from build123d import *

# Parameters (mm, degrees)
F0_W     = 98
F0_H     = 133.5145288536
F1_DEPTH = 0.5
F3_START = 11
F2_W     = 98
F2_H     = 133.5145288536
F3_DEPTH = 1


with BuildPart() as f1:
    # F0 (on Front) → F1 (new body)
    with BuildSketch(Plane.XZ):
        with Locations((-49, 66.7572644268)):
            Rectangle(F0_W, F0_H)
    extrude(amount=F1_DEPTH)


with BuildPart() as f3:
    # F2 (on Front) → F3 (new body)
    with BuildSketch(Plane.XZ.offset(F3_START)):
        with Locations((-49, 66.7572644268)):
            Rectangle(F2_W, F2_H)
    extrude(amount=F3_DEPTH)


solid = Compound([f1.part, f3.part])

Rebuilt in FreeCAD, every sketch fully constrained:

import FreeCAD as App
import Part
import Sketcher


def add_polygon(sketch, points):
    """Adds a closed chain of lines whose ends are joined by coincident constraints."""
    first, n = sketch.GeometryCount, len(points)
    for a, b in zip(points, points[1:] + points[:1]):
        sketch.addGeometry(Part.LineSegment(App.Vector(*a, 0), App.Vector(*b, 0)), False)
    for i in range(n):
        sketch.addConstraint(Sketcher.Constraint("Coincident", first + i, 2, first + (i + 1) % n, 1))

doc = App.newDocument("Part")
body = doc.addObject("PartDesign::Body", "Body")

# Sketch on XZ plane
sketch1 = body.newObject("Sketcher::SketchObject", "Sketch")
sketch1.AttachmentSupport = (doc.getObject("XZ_Plane"), [""])
sketch1.MapMode = "FlatFace"
add_polygon(sketch1, [(-98, 134), (-98, 0), (0, 0), (0, 134)])  # lines 0-3
sketch1.addConstraint(Sketcher.Constraint("Vertical", 0))
sketch1.addConstraint(Sketcher.Constraint("Horizontal", 1))
sketch1.addConstraint(Sketcher.Constraint("Vertical", 2))
sketch1.addConstraint(Sketcher.Constraint("Horizontal", 3))
sketch1.addConstraint(Sketcher.Constraint("Coincident", 1, 2, -1, 1))
sketch1.addConstraint(Sketcher.Constraint("DistanceX", 1, 1, 1, 2, 98.0))
sketch1.addConstraint(Sketcher.Constraint("DistanceY", 0, 2, 0, 1, 133.514529))
pad1 = body.newObject("PartDesign::Pad", "Pad")
pad1.Profile = sketch1
pad1.Length = 0.5
body2 = doc.addObject("PartDesign::Body", "Body001")

# Sketch on XZ plane
sketch2 = body2.newObject("Sketcher::SketchObject", "Sketch001")
sketch2.AttachmentSupport = (doc.getObject("XZ_Plane001"), [""])
sketch2.MapMode = "FlatFace"
sketch2.AttachmentOffset = App.Placement(App.Vector(0, 0, 11), App.Rotation())
add_polygon(sketch2, [(-98, 134), (-98, 0), (0, 0), (0, 134)])  # lines 0-3
sketch2.addConstraint(Sketcher.Constraint("Vertical", 0))
sketch2.addConstraint(Sketcher.Constraint("Horizontal", 1))
sketch2.addConstraint(Sketcher.Constraint("Vertical", 2))
sketch2.addConstraint(Sketcher.Constraint("Horizontal", 3))
sketch2.addConstraint(Sketcher.Constraint("Coincident", 1, 2, -1, 1))
sketch2.addConstraint(Sketcher.Constraint("DistanceX", 1, 1, 1, 2, 98.0))
sketch2.addConstraint(Sketcher.Constraint("DistanceY", 0, 2, 0, 1, 133.514529))
pad2 = body2.newObject("PartDesign::Pad", "Pad001")
pad2.Profile = sketch2
pad2.Length = 1

doc.recompute()
